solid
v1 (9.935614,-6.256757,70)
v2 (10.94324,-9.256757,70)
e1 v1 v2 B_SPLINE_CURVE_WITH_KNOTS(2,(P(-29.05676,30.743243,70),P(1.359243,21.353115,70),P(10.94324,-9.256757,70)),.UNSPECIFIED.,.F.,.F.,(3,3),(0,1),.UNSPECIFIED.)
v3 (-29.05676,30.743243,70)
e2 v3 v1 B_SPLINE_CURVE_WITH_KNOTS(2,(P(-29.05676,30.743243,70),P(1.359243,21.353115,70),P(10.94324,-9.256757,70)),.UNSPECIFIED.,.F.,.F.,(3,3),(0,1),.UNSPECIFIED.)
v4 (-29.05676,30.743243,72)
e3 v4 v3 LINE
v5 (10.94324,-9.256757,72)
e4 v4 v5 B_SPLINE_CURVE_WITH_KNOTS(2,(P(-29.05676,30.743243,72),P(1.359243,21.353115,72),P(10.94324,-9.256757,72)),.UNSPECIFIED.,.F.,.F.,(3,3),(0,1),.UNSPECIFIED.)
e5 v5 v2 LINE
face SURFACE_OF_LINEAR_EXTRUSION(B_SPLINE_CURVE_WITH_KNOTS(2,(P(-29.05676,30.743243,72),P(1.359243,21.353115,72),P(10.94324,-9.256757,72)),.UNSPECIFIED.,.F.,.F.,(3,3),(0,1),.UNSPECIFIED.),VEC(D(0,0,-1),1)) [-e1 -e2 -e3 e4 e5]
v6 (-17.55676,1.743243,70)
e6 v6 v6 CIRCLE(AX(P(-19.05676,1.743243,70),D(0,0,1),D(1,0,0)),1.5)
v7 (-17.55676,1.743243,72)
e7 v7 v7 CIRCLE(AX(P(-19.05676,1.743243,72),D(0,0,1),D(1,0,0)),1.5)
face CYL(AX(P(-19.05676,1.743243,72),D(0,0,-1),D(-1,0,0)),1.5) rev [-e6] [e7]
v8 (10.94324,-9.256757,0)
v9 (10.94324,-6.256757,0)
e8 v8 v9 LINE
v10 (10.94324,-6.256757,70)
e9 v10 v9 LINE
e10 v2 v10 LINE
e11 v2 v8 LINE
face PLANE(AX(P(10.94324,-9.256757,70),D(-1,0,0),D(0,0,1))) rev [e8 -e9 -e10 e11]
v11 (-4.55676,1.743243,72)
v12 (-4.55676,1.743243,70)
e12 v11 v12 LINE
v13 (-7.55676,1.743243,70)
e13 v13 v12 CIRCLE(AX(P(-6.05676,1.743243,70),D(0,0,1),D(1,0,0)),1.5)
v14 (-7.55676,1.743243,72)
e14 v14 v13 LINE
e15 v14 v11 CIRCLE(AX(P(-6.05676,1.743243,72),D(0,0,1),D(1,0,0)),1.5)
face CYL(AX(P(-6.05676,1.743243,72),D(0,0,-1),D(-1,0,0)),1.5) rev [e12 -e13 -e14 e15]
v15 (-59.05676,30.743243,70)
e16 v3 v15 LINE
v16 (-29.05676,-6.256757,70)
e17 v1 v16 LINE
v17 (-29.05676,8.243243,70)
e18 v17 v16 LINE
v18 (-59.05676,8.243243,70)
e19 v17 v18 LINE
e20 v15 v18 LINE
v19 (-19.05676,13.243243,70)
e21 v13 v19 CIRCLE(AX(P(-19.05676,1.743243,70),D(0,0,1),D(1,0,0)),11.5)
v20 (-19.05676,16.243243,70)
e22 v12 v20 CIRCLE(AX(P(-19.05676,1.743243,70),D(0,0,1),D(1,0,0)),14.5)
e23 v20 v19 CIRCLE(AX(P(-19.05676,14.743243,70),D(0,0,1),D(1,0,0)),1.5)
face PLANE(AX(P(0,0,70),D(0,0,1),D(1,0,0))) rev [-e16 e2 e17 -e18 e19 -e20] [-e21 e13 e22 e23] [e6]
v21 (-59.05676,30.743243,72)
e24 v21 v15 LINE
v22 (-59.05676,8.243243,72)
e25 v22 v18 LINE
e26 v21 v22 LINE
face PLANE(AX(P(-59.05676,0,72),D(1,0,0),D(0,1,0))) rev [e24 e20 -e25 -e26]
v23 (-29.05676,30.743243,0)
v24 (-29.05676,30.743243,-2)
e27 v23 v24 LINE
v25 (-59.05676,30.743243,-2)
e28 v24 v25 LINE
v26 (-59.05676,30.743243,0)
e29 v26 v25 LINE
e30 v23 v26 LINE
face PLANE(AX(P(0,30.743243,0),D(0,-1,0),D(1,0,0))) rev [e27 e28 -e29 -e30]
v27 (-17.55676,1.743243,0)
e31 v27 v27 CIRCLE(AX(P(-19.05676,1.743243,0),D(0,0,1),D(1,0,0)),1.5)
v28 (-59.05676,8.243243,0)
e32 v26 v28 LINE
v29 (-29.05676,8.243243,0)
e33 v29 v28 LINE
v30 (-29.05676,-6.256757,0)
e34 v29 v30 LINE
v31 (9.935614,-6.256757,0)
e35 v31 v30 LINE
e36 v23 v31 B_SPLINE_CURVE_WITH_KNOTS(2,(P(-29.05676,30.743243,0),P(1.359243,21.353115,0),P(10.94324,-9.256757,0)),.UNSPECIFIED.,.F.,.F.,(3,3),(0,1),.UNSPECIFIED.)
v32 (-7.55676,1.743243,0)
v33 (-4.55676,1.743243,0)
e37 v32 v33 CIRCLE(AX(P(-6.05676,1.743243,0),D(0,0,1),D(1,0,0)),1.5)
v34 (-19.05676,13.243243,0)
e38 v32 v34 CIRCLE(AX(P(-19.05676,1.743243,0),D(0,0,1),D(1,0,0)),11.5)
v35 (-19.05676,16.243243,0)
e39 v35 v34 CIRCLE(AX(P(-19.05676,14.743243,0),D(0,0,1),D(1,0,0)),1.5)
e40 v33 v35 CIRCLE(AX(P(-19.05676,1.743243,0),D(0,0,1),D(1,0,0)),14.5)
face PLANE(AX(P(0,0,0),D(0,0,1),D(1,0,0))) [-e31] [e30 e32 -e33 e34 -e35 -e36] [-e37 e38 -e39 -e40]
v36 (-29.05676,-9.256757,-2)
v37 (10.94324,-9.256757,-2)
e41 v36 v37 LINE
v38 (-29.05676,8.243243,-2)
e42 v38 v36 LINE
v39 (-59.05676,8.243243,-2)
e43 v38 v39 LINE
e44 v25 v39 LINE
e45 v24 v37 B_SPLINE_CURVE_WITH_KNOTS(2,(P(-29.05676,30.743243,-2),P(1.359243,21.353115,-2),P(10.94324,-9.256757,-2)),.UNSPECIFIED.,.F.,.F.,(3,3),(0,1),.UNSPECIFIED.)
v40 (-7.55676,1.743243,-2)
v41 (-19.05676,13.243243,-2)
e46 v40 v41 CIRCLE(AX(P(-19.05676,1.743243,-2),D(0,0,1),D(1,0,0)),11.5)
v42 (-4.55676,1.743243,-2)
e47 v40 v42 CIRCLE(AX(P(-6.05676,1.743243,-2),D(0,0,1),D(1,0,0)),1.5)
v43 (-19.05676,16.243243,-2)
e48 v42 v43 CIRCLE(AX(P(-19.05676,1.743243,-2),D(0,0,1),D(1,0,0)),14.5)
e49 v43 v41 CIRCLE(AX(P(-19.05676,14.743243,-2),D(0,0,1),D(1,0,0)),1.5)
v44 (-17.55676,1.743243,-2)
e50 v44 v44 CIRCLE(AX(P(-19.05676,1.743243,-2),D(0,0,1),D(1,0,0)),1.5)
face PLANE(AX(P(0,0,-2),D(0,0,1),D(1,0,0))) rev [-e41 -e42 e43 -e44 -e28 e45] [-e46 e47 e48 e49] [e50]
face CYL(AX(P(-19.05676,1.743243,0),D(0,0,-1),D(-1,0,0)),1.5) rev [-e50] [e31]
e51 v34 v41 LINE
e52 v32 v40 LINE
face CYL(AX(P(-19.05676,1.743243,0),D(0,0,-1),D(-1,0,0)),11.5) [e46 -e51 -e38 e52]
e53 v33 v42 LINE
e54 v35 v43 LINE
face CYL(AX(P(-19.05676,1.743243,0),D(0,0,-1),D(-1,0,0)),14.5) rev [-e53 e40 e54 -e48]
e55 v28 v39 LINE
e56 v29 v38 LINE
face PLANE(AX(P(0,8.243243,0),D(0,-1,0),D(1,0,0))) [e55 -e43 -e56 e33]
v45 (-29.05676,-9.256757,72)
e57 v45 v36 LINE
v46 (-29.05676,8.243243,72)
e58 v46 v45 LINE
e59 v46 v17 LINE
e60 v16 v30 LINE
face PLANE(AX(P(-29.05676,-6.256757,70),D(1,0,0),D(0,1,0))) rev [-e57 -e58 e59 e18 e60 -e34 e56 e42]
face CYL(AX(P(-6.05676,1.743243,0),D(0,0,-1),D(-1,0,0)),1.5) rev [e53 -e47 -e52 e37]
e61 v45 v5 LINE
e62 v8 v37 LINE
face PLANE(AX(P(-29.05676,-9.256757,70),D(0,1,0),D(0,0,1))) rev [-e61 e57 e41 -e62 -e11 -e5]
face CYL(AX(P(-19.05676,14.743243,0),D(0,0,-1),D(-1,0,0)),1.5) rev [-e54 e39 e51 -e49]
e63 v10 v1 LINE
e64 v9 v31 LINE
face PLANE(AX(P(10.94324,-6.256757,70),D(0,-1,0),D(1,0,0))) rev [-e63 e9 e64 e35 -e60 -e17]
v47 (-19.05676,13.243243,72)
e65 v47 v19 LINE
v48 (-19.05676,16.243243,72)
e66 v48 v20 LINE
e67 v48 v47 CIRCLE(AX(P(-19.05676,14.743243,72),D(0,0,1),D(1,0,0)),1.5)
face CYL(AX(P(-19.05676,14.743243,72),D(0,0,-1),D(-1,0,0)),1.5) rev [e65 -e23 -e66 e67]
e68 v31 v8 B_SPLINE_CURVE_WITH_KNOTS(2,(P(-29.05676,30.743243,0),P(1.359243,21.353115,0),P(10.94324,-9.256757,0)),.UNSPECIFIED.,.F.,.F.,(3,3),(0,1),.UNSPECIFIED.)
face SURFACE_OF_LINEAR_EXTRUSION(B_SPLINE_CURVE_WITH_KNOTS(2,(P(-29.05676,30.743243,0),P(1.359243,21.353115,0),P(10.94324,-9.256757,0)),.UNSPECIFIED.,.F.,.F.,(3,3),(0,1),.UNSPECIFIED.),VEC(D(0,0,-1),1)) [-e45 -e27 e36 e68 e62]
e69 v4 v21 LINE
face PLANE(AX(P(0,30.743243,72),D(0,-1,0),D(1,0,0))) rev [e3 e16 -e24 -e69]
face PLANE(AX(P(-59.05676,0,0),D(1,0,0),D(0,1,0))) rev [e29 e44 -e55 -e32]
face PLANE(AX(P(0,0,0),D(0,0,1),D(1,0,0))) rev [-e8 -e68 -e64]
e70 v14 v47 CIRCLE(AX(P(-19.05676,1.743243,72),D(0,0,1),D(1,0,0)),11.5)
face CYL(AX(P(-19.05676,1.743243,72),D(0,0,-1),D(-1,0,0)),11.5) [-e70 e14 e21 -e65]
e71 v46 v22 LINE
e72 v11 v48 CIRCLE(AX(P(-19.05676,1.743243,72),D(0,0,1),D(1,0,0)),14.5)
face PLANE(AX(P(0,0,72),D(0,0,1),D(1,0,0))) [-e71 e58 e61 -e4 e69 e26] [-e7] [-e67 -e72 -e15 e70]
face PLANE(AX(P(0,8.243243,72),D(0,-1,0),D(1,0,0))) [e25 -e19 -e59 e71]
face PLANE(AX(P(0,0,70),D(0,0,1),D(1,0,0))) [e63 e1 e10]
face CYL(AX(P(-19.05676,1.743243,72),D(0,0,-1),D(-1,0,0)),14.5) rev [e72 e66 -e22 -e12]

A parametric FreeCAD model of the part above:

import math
import FreeCAD as App
import Part
import Sketcher
Q = App.Units.Quantity

doc = App.newDocument("Part")
body = doc.addObject("PartDesign::Body", "Body")

sketch1 = doc.addObject("Sketcher::SketchObject", "Sketch")
body.addObject(sketch1)
sketch1.AttachmentSupport = (doc.XY_Plane, [""])
sketch1.MapMode = "FlatFace"
sketch1.addGeometry(Part.LineSegment(App.Vector(-29.1, -6.3, 0), App.Vector(-29.1, -9.3, 0)), False)
sketch1.addGeometry(Part.LineSegment(App.Vector(-29.1, -9.3, 0), App.Vector(10.9, -9.3, 0)), False)
sketch1.addGeometry(Part.LineSegment(App.Vector(10.9, -9.3, 0), App.Vector(10.9, -6.3, 0)), False)
sketch1.addGeometry(Part.LineSegment(App.Vector(10.9, -6.3, 0), App.Vector(-29.1, -6.3, 0)), False)
sketch1.addConstraint(Sketcher.Constraint("Coincident", 0, 2, 1, 1))
sketch1.addConstraint(Sketcher.Constraint("Coincident", 1, 2, 2, 1))
sketch1.addConstraint(Sketcher.Constraint("Coincident", 2, 2, 3, 1))
sketch1.addConstraint(Sketcher.Constraint("Coincident", 3, 2, 0, 1))
sketch1.addConstraint(Sketcher.Constraint("Vertical", 0))
sketch1.addConstraint(Sketcher.Constraint("Horizontal", 1))
sketch1.addConstraint(Sketcher.Constraint("Vertical", 2))
sketch1.addConstraint(Sketcher.Constraint("Horizontal", 3))
sketch1.addConstraint(Sketcher.Constraint("DistanceX", 1, 1, 1, 2, Q("40 mm")))
sketch1.addConstraint(Sketcher.Constraint("DistanceY", 0, 2, 0, 1, Q("3 mm")))
sketch1.addConstraint(Sketcher.Constraint("DistanceX", 0, 2, -1, 1, Q("29.05676 mm")))
sketch1.addConstraint(Sketcher.Constraint("DistanceY", 0, 2, -1, 1, Q("9.256757 mm")))
pad1 = doc.addObject("PartDesign::Pad", "Pad")
body.addObject(pad1)
pad1.Profile = sketch1
pad1.Length = 70

sketch2 = doc.addObject("Sketcher::SketchObject", "Sketch001")
body.addObject(sketch2)
sketch2.AttachmentSupport = (doc.XY_Plane, [""])
sketch2.MapMode = "FlatFace"
sketch2.AttachmentOffset = App.Placement(App.Vector(0, 0, 70), App.Rotation())
sketch2.addGeometry(Part.LineSegment(App.Vector(-29.05676, -9.256757, 0), App.Vector(10.94324, -9.256757, 0)), False)
sketch2.addGeometry(Part.BSplineCurve([App.Vector(-29.05676, 30.743243, 0), App.Vector(1.359243, 21.353115, 0), App.Vector(10.94324, -9.256757, 0)], [3, 3], [0, 1], False, 2, [1, 1, 1], False), False)
sketch2.addGeometry(Part.LineSegment(App.Vector(-29.05676, 30.743243, 0), App.Vector(-59.05676, 30.743243, 0)), False)
sketch2.addGeometry(Part.LineSegment(App.Vector(-59.05676, 30.743243, 0), App.Vector(-59.05676, 8.243243, 0)), False)
sketch2.addGeometry(Part.LineSegment(App.Vector(-59.05676, 8.243243, 0), App.Vector(-29.05676, 8.243243, 0)), False)
sketch2.addGeometry(Part.LineSegment(App.Vector(-29.05676, 8.243243, 0), App.Vector(-29.05676, -9.256757, 0)), False)
sketch2.addGeometry(Part.Circle(App.Vector(-19.05676, 1.743243, 0), App.Vector(0, 0, 1), 1.5), False)
sketch2.addGeometry(Part.ArcOfCircle(Part.Circle(App.Vector(-19.05676, 1.743243, 0), App.Vector(0, 0, 1), 14.5), math.radians(0), math.radians(90)), False)
sketch2.addGeometry(Part.ArcOfCircle(Part.Circle(App.Vector(-6.05676, 1.743243, 0), App.Vector(0, 0, 1), 1.5), math.radians(180), math.radians(360)), False)
sketch2.addGeometry(Part.ArcOfCircle(Part.Circle(App.Vector(-19.05676, 1.743243, 0), App.Vector(0, 0, 1), 11.5), math.radians(0), math.radians(90)), False)
sketch2.addGeometry(Part.ArcOfCircle(Part.Circle(App.Vector(-19.05676, 14.743243, 0), App.Vector(0, 0, 1), 1.5), math.radians(90), math.radians(270)), False)
sketch2.addConstraint(Sketcher.Constraint("Block", 1))
sketch2.addConstraint(Sketcher.Constraint("Coincident", 0, 2, 1, 2))
sketch2.addConstraint(Sketcher.Constraint("Coincident", 1, 1, 2, 1))
sketch2.addConstraint(Sketcher.Constraint("Coincident", 2, 2, 3, 1))
sketch2.addConstraint(Sketcher.Constraint("Coincident", 3, 2, 4, 1))
sketch2.addConstraint(Sketcher.Constraint("Coincident", 4, 2, 5, 1))
sketch2.addConstraint(Sketcher.Constraint("Coincident", 5, 2, 0, 1))
sketch2.addConstraint(Sketcher.Constraint("Tangent", 7, 1, 8, 2))
sketch2.addConstraint(Sketcher.Constraint("Tangent", 8, 1, 9, 1))
sketch2.addConstraint(Sketcher.Constraint("Tangent", 9, 2, 10, 2))
sketch2.addConstraint(Sketcher.Constraint("Tangent", 10, 1, 7, 2))
sketch2.addConstraint(Sketcher.Constraint("Horizontal", 0))
sketch2.addConstraint(Sketcher.Constraint("Horizontal", 2))
sketch2.addConstraint(Sketcher.Constraint("Vertical", 3))
sketch2.addConstraint(Sketcher.Constraint("Horizontal", 4))
sketch2.addConstraint(Sketcher.Constraint("Vertical", 5))
sketch2.addConstraint(Sketcher.Constraint("Coincident", 7, 3, 6, 3))
sketch2.addConstraint(Sketcher.Constraint("Coincident", 9, 3, 6, 3))
sketch2.addConstraint(Sketcher.Constraint("Equal", 6, 8))
sketch2.addConstraint(Sketcher.Constraint("Horizontal", 7, 3, 8, 3))
sketch2.addConstraint(Sketcher.Constraint("Vertical", 9, 3, 10, 3))
sketch2.addConstraint(Sketcher.Constraint("Equal", 2, 4))
sketch2.addConstraint(Sketcher.Constraint("Diameter", 6, Q("3 mm")))
sketch2.addConstraint(Sketcher.Constraint("Radius", 7, Q("14.5 mm")))
sketch2.addConstraint(Sketcher.Constraint("DistanceX", 2, 2, 2, 1, Q("30 mm")))
sketch2.addConstraint(Sketcher.Constraint("DistanceY", 3, 2, 3, 1, Q("22.5 mm")))
sketch2.addConstraint(Sketcher.Constraint("DistanceX", 8, 3, 0, 2, Q("17 mm")))
sketch2.addConstraint(Sketcher.Constraint("DistanceY", 0, 2, 8, 3, Q("11 mm")))
pad2 = doc.addObject("PartDesign::Pad", "Pad001")
body.addObject(pad2)
pad2.Profile = sketch2
pad2.Length = 2
doc.recompute()

linearpattern = doc.addObject("PartDesign::LinearPattern", "LinearPattern")
body.addObject(linearpattern)
linearpattern.Originals = [pad2]
linearpattern.Direction = (doc.Z_Axis, [""])
linearpattern.Mode = "offset"
linearpattern.Offset = 72
linearpattern.Occurrences = 2
linearpattern.Reversed = True
body.Tip = linearpattern

doc.recompute()
